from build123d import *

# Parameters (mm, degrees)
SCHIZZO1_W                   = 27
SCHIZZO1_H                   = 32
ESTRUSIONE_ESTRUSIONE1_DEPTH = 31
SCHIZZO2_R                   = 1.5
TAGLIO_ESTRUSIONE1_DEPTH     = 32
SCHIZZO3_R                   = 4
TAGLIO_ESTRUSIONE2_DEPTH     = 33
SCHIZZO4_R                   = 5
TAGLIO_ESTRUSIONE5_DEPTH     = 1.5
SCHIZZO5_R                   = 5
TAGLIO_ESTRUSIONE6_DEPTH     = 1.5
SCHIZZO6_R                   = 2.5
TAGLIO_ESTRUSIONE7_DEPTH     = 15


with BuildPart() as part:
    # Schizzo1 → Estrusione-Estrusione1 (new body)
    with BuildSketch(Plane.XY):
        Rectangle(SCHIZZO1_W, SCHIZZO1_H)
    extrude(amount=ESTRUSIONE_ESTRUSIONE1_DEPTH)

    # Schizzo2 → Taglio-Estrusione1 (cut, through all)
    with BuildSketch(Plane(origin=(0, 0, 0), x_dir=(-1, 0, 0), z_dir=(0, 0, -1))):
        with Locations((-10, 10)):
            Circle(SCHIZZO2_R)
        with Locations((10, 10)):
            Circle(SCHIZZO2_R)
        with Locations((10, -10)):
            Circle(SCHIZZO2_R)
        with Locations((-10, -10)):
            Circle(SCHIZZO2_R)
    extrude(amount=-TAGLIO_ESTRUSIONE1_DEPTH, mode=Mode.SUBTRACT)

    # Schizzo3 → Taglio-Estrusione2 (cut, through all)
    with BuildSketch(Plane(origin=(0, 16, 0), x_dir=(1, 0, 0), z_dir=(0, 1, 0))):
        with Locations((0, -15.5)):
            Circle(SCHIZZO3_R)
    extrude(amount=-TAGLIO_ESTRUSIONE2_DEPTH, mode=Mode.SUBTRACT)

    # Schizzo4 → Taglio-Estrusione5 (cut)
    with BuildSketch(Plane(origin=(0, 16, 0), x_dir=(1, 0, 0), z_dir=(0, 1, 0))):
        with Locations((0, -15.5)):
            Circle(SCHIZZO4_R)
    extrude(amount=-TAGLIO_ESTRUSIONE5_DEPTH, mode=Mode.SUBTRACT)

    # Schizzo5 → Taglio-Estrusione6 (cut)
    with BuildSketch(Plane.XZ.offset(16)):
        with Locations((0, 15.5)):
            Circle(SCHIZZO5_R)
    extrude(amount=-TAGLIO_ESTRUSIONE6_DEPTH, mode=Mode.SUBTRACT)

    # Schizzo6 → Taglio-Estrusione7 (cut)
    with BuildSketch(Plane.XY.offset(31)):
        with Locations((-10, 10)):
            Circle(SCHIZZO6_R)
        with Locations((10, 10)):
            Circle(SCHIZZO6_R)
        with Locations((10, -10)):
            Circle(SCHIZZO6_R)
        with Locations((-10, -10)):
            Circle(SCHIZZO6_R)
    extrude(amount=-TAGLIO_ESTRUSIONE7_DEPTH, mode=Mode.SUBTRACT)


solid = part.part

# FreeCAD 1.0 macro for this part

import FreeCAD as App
import Part
import Sketcher
from FreeCAD import Vector

doc = App.newDocument("Part")
body = doc.addObject("PartDesign::Body", "Body")

sketch1 = doc.addObject("Sketcher::SketchObject", "Sketch")
body.addObject(sketch1)
sketch1.AttachmentSupport = (doc.XY_Plane, [""])
sketch1.MapMode = "FlatFace"
sketch1.addGeometry([
    Part.LineSegment(Vector(-14, 16, 0), Vector(-14, -16, 0)),
    Part.LineSegment(Vector(-14, -16, 0), Vector(14, -16, 0)),
    Part.LineSegment(Vector(14, -16, 0), Vector(14, 16, 0)),
    Part.LineSegment(Vector(14, 16, 0), Vector(-14, 16, 0)),
], False)
sketch1.addConstraint([
    Sketcher.Constraint("Coincident", 0, 2, 1, 1),
    Sketcher.Constraint("Coincident", 1, 2, 2, 1),
    Sketcher.Constraint("Coincident", 2, 2, 3, 1),
    Sketcher.Constraint("Coincident", 3, 2, 0, 1),
    Sketcher.Constraint("Vertical", 0),
    Sketcher.Constraint("Horizontal", 1),
    Sketcher.Constraint("Vertical", 2),
    Sketcher.Constraint("Horizontal", 3),
    Sketcher.Constraint("Symmetric", 0, 2, 2, 2, -1, 1),
    Sketcher.Constraint("DistanceX", 1, 1, 1, 2, 27.0),
    Sketcher.Constraint("DistanceY", 0, 2, 0, 1, 32.0),
])
pad1 = doc.addObject("PartDesign::Pad", "Pad")
body.addObject(pad1)
pad1.Profile = sketch1
pad1.Length = 31

sketch2 = doc.addObject("Sketcher::SketchObject", "Sketch001")
body.addObject(sketch2)
sketch2.AttachmentSupport = (doc.XY_Plane, [""])
sketch2.MapMode = "FlatFace"
sketch2.addGeometry([
    Part.Circle(Vector(10, 10, 0), Vector(0, 0, 1), 1.5),
    Part.Circle(Vector(-10, 10, 0), Vector(0, 0, 1), 1.5),
    Part.Circle(Vector(-10, -10, 0), Vector(0, 0, 1), 1.5),
    Part.Circle(Vector(10, -10, 0), Vector(0, 0, 1), 1.5),
], False)
sketch2.addConstraint([
    Sketcher.Constraint("Equal", 0, 1),
    Sketcher.Constraint("Equal", 1, 2),
    Sketcher.Constraint("Equal", 2, 3),
    Sketcher.Constraint("Symmetric", 0, 3, 2, 3, -1, 1),
    Sketcher.Constraint("Symmetric", 1, 3, 3, 3, -1, 1),
    Sketcher.Constraint("Symmetric", 0, 3, 1, 3, -2),
    Sketcher.Constraint("Diameter", 0, 3.0),
    Sketcher.Constraint("DistanceX", -1, 1, 0, 3, 10.0),
    Sketcher.Constraint("DistanceY", -1, 1, 0, 3, 10.0),
])
pocket1 = doc.addObject("PartDesign::Pocket", "Pocket")
body.addObject(pocket1)
pocket1.Profile = sketch2
pocket1.Type = "ThroughAll"
pocket1.Reversed = True

sketch3 = doc.addObject("Sketcher::SketchObject", "Sketch002")
body.addObject(sketch3)
sketch3.AttachmentSupport = (doc.XZ_Plane, [""])
sketch3.MapMode = "FlatFace"
sketch3.AttachmentOffset = App.Placement(Vector(0, 0, -16), App.Rotation())
sketch3.addGeometry(Part.Circle(Vector(0, 15.5, 0), Vector(0, 0, 1), 4), False)
sketch3.addConstraint([
    Sketcher.Constraint("PointOnObject", 0, 3, -2),
    Sketcher.Constraint("Diameter", 0, 8.0),
    Sketcher.Constraint("DistanceY", -1, 1, 0, 3, 15.5),
])
pocket2 = doc.addObject("PartDesign::Pocket", "Pocket001")
body.addObject(pocket2)
pocket2.Profile = sketch3
pocket2.Type = "ThroughAll"
pocket2.Reversed = True

sketch4 = doc.addObject("Sketcher::SketchObject", "Sketch003")
body.addObject(sketch4)
sketch4.AttachmentSupport = (doc.XZ_Plane, [""])
sketch4.MapMode = "FlatFace"
sketch4.AttachmentOffset = App.Placement(Vector(0, 0, -16), App.Rotation())
sketch4.addGeometry(Part.Circle(Vector(0, 16, 0), Vector(0, 0, 1), 5), False)
sketch4.addConstraint([
    Sketcher.Constraint("PointOnObject", 0, 3, -2),
    Sketcher.Constraint("Diameter", 0, 10.0),
    Sketcher.Constraint("DistanceY", -1, 1, 0, 3, 15.5),
])
pocket3 = doc.addObject("PartDesign::Pocket", "Pocket002")
body.addObject(pocket3)
pocket3.Profile = sketch4
pocket3.Length = 1.5
pocket3.Reversed = True

sketch5 = doc.addObject("Sketcher::SketchObject", "Sketch004")
body.addObject(sketch5)
sketch5.AttachmentSupport = (doc.XZ_Plane, [""])
sketch5.MapMode = "FlatFace"
sketch5.AttachmentOffset = App.Placement(Vector(0, 0, 16), App.Rotation())
sketch5.addGeometry(Part.Circle(Vector(0, 16, 0), Vector(0, 0, 1), 5), False)
sketch5.addConstraint([
    Sketcher.Constraint("PointOnObject", 0, 3, -2),
    Sketcher.Constraint("Diameter", 0, 10.0),
    Sketcher.Constraint("DistanceY", -1, 1, 0, 3, 15.5),
])
pocket4 = doc.addObject("PartDesign::Pocket", "Pocket003")
body.addObject(pocket4)
pocket4.Profile = sketch5
pocket4.Length = 1.5

sketch6 = doc.addObject("Sketcher::SketchObject", "Sketch005")
body.addObject(sketch6)
sketch6.AttachmentSupport = (doc.XY_Plane, [""])
sketch6.MapMode = "FlatFace"
sketch6.AttachmentOffset = App.Placement(Vector(0, 0, 31), App.Rotation())
sketch6.addGeometry([
    Part.Circle(Vector(-10, 10, 0), Vector(0, 0, 1), 2.5),
    Part.Circle(Vector(10, 10, 0), Vector(0, 0, 1), 2.5),
    Part.Circle(Vector(10, -10, 0), Vector(0, 0, 1), 2.5),
    Part.Circle(Vector(-10, -10, 0), Vector(0, 0, 1), 2.5),
], False)
sketch6.addConstraint([
    Sketcher.Constraint("Equal", 0, 1),
    Sketcher.Constraint("Equal", 1, 2),
    Sketcher.Constraint("Equal", 2, 3),
    Sketcher.Constraint("Symmetric", 0, 3, 2, 3, -1, 1),
    Sketcher.Constraint("Symmetric", 1, 3, 3, 3, -1, 1),
    Sketcher.Constraint("Symmetric", 0, 3, 1, 3, -2),
    Sketcher.Constraint("Diameter", 0, 5.0),
    Sketcher.Constraint("DistanceX", 0, 3, -1, 1, 10.0),
    Sketcher.Constraint("DistanceY", -1, 1, 0, 3, 10.0),
])
pocket5 = doc.addObject("PartDesign::Pocket", "Pocket004")
body.addObject(pocket5)
pocket5.Profile = sketch6
pocket5.Length = 15

doc.recompute()
